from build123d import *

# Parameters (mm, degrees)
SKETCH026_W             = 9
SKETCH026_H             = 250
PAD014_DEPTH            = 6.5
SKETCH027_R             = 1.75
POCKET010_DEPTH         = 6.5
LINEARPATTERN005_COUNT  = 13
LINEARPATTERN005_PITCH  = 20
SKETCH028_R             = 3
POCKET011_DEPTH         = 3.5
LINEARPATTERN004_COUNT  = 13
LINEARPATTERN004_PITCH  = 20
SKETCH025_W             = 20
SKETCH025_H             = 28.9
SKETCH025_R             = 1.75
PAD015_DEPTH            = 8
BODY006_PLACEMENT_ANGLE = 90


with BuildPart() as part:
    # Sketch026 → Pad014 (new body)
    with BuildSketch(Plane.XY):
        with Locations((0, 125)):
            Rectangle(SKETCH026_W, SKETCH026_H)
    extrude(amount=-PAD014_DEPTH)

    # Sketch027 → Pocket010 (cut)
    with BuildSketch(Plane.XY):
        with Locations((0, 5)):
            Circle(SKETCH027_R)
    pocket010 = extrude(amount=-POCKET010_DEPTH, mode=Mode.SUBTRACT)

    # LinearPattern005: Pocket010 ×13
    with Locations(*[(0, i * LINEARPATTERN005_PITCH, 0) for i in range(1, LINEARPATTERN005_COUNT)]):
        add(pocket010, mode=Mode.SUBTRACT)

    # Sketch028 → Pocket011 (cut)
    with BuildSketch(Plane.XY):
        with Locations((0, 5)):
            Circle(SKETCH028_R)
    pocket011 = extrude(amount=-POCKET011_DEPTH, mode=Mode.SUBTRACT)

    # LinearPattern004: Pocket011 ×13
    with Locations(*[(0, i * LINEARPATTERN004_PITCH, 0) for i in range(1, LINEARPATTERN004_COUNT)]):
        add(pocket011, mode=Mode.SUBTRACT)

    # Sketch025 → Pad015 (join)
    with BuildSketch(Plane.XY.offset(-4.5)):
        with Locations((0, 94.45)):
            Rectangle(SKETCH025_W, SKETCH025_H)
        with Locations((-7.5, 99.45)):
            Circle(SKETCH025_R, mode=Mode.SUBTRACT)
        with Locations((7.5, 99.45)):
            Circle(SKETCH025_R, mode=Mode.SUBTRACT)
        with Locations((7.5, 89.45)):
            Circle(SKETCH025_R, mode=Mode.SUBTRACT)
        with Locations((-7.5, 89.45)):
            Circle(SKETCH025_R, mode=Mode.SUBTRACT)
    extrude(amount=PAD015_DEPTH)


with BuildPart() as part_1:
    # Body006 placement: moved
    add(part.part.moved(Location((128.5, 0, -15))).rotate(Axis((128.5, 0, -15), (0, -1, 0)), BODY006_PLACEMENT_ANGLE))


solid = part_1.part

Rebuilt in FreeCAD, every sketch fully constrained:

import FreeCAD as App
import Part
import Sketcher

V = App.Vector

doc = App.newDocument("Part")
body = doc.addObject("PartDesign::Body", "Body")

sketch1 = body.newObject("Sketcher::SketchObject", "Sketch")
sketch1.AttachmentSupport = (doc.getObject("XY_Plane"), [""])
sketch1.MapMode = "FlatFace"
sketch1.addGeometry(Part.LineSegment(V(-4, 250, 0), V(-4, 0, 0)), False)
sketch1.addGeometry(Part.LineSegment(V(-4, 0, 0), V(4, 0, 0)), False)
sketch1.addGeometry(Part.LineSegment(V(4, 0, 0), V(4, 250, 0)), False)
sketch1.addGeometry(Part.LineSegment(V(4, 250, 0), V(-4, 250, 0)), False)
sketch1.addConstraint(Sketcher.Constraint("Coincident", 0, 2, 1, 1))
sketch1.addConstraint(Sketcher.Constraint("Coincident", 1, 2, 2, 1))
sketch1.addConstraint(Sketcher.Constraint("Coincident", 2, 2, 3, 1))
sketch1.addConstraint(Sketcher.Constraint("Coincident", 3, 2, 0, 1))
sketch1.addConstraint(Sketcher.Constraint("Vertical", 0))
sketch1.addConstraint(Sketcher.Constraint("Horizontal", 1))
sketch1.addConstraint(Sketcher.Constraint("Vertical", 2))
sketch1.addConstraint(Sketcher.Constraint("Horizontal", 3))
sketch1.addConstraint(Sketcher.Constraint("Symmetric", 0, 2, 1, 2, -1, 1))
sketch1.addConstraint(Sketcher.Constraint("DistanceX", 1, 1, 1, 2, 9.0))
sketch1.addConstraint(Sketcher.Constraint("DistanceY", 0, 2, 0, 1, 250.0))
pad1 = body.newObject("PartDesign::Pad", "Pad")
pad1.Profile = sketch1
pad1.Length = 6.5
pad1.Reversed = True

sketch2 = body.newObject("Sketcher::SketchObject", "Sketch001")
sketch2.AttachmentSupport = (doc.getObject("XY_Plane"), [""])
sketch2.MapMode = "FlatFace"
sketch2.addGeometry(Part.Circle(V(0, 5, 0), V(0, 0, 1), 1.8), False)
sketch2.addConstraint(Sketcher.Constraint("PointOnObject", 0, 3, -2))
sketch2.addConstraint(Sketcher.Constraint("Diameter", 0, 3.5))
sketch2.addConstraint(Sketcher.Constraint("DistanceY", -1, 1, 0, 3, 5.0))
pocket1 = body.newObject("PartDesign::Pocket", "Pocket")
pocket1.Profile = sketch2
pocket1.Length = 6.5
doc.recompute()

linearpattern = body.newObject("PartDesign::LinearPattern", "LinearPattern")
linearpattern.Originals = [pocket1]
linearpattern.Direction = (doc.getObject("Y_Axis"), [""])
linearpattern.Mode = "offset"
linearpattern.Offset = 20
linearpattern.Occurrences = 13
body.Tip = linearpattern

sketch3 = body.newObject("Sketcher::SketchObject", "Sketch002")
sketch3.AttachmentSupport = (doc.getObject("XY_Plane"), [""])
sketch3.MapMode = "FlatFace"
sketch3.addGeometry(Part.Circle(V(0, 5, 0), V(0, 0, 1), 3), False)
sketch3.addConstraint(Sketcher.Constraint("PointOnObject", 0, 3, -2))
sketch3.addConstraint(Sketcher.Constraint("Diameter", 0, 6.0))
sketch3.addConstraint(Sketcher.Constraint("DistanceY", -1, 1, 0, 3, 5.0))
pocket2 = body.newObject("PartDesign::Pocket", "Pocket001")
pocket2.Profile = sketch3
pocket2.Length = 3.5
doc.recompute()

linearpattern2 = body.newObject("PartDesign::LinearPattern", "LinearPattern001")
linearpattern2.Originals = [pocket2]
linearpattern2.Direction = (doc.getObject("Y_Axis"), [""])
linearpattern2.Mode = "offset"
linearpattern2.Offset = 20
linearpattern2.Occurrences = 13
body.Tip = linearpattern2

sketch4 = body.newObject("Sketcher::SketchObject", "Sketch003")
sketch4.AttachmentSupport = (doc.getObject("XY_Plane"), [""])
sketch4.MapMode = "FlatFace"
sketch4.AttachmentOffset = App.Placement(V(0, 0, -4.5), App.Rotation())
sketch4.addGeometry(Part.LineSegment(V(-10, 108.9, 0), V(-10, 80, 0)), False)
sketch4.addGeometry(Part.LineSegment(V(-10, 80, 0), V(10, 80, 0)), False)
sketch4.addGeometry(Part.LineSegment(V(10, 80, 0), V(10, 108.9, 0)), False)
sketch4.addGeometry(Part.LineSegment(V(10, 108.9, 0), V(-10, 108.9, 0)), False)
sketch4.addGeometry(Part.Circle(V(-7.5, 89.5, 0), V(0, 0, 1), 1.8), False)
sketch4.addGeometry(Part.Circle(V(7.5, 89.5, 0), V(0, 0, 1), 1.8), False)
sketch4.addGeometry(Part.Circle(V(-7.5, 99.5, 0), V(0, 0, 1), 1.8), False)
sketch4.addGeometry(Part.Circle(V(7.5, 99.5, 0), V(0, 0, 1), 1.8), False)
sketch4.addConstraint(Sketcher.Constraint("Coincident", 0, 2, 1, 1))
sketch4.addConstraint(Sketcher.Constraint("Coincident", 1, 2, 2, 1))
sketch4.addConstraint(Sketcher.Constraint("Coincident", 2, 2, 3, 1))
sketch4.addConstraint(Sketcher.Constraint("Coincident", 3, 2, 0, 1))
sketch4.addConstraint(Sketcher.Constraint("Vertical", 0))
sketch4.addConstraint(Sketcher.Constraint("Horizontal", 1))
sketch4.addConstraint(Sketcher.Constraint("Vertical", 2))
sketch4.addConstraint(Sketcher.Constraint("Horizontal", 3))
sketch4.addConstraint(Sketcher.Constraint("Equal", 4, 5))
sketch4.addConstraint(Sketcher.Constraint("Equal", 5, 6))
sketch4.addConstraint(Sketcher.Constraint("Equal", 6, 7))
sketch4.addConstraint(Sketcher.Constraint("Symmetric", 4, 3, 5, 3, -2))
sketch4.addConstraint(Sketcher.Constraint("Symmetric", 6, 3, 7, 3, -2))
sketch4.addConstraint(Sketcher.Constraint("Vertical", 4, 3, 6, 3))
sketch4.addConstraint(Sketcher.Constraint("Diameter", 4, 3.5))
sketch4.addConstraint(Sketcher.Constraint("DistanceX", 1, 1, 1, 2, 20.0))
sketch4.addConstraint(Sketcher.Constraint("DistanceY", 0, 2, 0, 1, 28.9))
sketch4.addConstraint(Sketcher.Constraint("DistanceX", 0, 2, -1, 1, 10.0))
sketch4.addConstraint(Sketcher.Constraint("DistanceY", -1, 1, 0, 2, 80.0))
sketch4.addConstraint(Sketcher.Constraint("DistanceX", 4, 3, 5, 3, 15.0))
sketch4.addConstraint(Sketcher.Constraint("DistanceY", 4, 3, 6, 3, 10.0))
sketch4.addConstraint(Sketcher.Constraint("DistanceY", -1, 1, 4, 3, 89.45))
pad2 = body.newObject("PartDesign::Pad", "Pad001")
pad2.Profile = sketch4
pad2.Length = 8
body2 = doc.addObject("PartDesign::Body", "Body001")
doc.recompute()

body.Placement = App.Placement(V(128.5, 0, -15), App.Rotation(V(0, -1, 0), 90))
boolean = body2.newObject("PartDesign::Boolean", "Boolean")
boolean.Type = "Fuse"
boolean.addObjects([body])

doc.recompute()
